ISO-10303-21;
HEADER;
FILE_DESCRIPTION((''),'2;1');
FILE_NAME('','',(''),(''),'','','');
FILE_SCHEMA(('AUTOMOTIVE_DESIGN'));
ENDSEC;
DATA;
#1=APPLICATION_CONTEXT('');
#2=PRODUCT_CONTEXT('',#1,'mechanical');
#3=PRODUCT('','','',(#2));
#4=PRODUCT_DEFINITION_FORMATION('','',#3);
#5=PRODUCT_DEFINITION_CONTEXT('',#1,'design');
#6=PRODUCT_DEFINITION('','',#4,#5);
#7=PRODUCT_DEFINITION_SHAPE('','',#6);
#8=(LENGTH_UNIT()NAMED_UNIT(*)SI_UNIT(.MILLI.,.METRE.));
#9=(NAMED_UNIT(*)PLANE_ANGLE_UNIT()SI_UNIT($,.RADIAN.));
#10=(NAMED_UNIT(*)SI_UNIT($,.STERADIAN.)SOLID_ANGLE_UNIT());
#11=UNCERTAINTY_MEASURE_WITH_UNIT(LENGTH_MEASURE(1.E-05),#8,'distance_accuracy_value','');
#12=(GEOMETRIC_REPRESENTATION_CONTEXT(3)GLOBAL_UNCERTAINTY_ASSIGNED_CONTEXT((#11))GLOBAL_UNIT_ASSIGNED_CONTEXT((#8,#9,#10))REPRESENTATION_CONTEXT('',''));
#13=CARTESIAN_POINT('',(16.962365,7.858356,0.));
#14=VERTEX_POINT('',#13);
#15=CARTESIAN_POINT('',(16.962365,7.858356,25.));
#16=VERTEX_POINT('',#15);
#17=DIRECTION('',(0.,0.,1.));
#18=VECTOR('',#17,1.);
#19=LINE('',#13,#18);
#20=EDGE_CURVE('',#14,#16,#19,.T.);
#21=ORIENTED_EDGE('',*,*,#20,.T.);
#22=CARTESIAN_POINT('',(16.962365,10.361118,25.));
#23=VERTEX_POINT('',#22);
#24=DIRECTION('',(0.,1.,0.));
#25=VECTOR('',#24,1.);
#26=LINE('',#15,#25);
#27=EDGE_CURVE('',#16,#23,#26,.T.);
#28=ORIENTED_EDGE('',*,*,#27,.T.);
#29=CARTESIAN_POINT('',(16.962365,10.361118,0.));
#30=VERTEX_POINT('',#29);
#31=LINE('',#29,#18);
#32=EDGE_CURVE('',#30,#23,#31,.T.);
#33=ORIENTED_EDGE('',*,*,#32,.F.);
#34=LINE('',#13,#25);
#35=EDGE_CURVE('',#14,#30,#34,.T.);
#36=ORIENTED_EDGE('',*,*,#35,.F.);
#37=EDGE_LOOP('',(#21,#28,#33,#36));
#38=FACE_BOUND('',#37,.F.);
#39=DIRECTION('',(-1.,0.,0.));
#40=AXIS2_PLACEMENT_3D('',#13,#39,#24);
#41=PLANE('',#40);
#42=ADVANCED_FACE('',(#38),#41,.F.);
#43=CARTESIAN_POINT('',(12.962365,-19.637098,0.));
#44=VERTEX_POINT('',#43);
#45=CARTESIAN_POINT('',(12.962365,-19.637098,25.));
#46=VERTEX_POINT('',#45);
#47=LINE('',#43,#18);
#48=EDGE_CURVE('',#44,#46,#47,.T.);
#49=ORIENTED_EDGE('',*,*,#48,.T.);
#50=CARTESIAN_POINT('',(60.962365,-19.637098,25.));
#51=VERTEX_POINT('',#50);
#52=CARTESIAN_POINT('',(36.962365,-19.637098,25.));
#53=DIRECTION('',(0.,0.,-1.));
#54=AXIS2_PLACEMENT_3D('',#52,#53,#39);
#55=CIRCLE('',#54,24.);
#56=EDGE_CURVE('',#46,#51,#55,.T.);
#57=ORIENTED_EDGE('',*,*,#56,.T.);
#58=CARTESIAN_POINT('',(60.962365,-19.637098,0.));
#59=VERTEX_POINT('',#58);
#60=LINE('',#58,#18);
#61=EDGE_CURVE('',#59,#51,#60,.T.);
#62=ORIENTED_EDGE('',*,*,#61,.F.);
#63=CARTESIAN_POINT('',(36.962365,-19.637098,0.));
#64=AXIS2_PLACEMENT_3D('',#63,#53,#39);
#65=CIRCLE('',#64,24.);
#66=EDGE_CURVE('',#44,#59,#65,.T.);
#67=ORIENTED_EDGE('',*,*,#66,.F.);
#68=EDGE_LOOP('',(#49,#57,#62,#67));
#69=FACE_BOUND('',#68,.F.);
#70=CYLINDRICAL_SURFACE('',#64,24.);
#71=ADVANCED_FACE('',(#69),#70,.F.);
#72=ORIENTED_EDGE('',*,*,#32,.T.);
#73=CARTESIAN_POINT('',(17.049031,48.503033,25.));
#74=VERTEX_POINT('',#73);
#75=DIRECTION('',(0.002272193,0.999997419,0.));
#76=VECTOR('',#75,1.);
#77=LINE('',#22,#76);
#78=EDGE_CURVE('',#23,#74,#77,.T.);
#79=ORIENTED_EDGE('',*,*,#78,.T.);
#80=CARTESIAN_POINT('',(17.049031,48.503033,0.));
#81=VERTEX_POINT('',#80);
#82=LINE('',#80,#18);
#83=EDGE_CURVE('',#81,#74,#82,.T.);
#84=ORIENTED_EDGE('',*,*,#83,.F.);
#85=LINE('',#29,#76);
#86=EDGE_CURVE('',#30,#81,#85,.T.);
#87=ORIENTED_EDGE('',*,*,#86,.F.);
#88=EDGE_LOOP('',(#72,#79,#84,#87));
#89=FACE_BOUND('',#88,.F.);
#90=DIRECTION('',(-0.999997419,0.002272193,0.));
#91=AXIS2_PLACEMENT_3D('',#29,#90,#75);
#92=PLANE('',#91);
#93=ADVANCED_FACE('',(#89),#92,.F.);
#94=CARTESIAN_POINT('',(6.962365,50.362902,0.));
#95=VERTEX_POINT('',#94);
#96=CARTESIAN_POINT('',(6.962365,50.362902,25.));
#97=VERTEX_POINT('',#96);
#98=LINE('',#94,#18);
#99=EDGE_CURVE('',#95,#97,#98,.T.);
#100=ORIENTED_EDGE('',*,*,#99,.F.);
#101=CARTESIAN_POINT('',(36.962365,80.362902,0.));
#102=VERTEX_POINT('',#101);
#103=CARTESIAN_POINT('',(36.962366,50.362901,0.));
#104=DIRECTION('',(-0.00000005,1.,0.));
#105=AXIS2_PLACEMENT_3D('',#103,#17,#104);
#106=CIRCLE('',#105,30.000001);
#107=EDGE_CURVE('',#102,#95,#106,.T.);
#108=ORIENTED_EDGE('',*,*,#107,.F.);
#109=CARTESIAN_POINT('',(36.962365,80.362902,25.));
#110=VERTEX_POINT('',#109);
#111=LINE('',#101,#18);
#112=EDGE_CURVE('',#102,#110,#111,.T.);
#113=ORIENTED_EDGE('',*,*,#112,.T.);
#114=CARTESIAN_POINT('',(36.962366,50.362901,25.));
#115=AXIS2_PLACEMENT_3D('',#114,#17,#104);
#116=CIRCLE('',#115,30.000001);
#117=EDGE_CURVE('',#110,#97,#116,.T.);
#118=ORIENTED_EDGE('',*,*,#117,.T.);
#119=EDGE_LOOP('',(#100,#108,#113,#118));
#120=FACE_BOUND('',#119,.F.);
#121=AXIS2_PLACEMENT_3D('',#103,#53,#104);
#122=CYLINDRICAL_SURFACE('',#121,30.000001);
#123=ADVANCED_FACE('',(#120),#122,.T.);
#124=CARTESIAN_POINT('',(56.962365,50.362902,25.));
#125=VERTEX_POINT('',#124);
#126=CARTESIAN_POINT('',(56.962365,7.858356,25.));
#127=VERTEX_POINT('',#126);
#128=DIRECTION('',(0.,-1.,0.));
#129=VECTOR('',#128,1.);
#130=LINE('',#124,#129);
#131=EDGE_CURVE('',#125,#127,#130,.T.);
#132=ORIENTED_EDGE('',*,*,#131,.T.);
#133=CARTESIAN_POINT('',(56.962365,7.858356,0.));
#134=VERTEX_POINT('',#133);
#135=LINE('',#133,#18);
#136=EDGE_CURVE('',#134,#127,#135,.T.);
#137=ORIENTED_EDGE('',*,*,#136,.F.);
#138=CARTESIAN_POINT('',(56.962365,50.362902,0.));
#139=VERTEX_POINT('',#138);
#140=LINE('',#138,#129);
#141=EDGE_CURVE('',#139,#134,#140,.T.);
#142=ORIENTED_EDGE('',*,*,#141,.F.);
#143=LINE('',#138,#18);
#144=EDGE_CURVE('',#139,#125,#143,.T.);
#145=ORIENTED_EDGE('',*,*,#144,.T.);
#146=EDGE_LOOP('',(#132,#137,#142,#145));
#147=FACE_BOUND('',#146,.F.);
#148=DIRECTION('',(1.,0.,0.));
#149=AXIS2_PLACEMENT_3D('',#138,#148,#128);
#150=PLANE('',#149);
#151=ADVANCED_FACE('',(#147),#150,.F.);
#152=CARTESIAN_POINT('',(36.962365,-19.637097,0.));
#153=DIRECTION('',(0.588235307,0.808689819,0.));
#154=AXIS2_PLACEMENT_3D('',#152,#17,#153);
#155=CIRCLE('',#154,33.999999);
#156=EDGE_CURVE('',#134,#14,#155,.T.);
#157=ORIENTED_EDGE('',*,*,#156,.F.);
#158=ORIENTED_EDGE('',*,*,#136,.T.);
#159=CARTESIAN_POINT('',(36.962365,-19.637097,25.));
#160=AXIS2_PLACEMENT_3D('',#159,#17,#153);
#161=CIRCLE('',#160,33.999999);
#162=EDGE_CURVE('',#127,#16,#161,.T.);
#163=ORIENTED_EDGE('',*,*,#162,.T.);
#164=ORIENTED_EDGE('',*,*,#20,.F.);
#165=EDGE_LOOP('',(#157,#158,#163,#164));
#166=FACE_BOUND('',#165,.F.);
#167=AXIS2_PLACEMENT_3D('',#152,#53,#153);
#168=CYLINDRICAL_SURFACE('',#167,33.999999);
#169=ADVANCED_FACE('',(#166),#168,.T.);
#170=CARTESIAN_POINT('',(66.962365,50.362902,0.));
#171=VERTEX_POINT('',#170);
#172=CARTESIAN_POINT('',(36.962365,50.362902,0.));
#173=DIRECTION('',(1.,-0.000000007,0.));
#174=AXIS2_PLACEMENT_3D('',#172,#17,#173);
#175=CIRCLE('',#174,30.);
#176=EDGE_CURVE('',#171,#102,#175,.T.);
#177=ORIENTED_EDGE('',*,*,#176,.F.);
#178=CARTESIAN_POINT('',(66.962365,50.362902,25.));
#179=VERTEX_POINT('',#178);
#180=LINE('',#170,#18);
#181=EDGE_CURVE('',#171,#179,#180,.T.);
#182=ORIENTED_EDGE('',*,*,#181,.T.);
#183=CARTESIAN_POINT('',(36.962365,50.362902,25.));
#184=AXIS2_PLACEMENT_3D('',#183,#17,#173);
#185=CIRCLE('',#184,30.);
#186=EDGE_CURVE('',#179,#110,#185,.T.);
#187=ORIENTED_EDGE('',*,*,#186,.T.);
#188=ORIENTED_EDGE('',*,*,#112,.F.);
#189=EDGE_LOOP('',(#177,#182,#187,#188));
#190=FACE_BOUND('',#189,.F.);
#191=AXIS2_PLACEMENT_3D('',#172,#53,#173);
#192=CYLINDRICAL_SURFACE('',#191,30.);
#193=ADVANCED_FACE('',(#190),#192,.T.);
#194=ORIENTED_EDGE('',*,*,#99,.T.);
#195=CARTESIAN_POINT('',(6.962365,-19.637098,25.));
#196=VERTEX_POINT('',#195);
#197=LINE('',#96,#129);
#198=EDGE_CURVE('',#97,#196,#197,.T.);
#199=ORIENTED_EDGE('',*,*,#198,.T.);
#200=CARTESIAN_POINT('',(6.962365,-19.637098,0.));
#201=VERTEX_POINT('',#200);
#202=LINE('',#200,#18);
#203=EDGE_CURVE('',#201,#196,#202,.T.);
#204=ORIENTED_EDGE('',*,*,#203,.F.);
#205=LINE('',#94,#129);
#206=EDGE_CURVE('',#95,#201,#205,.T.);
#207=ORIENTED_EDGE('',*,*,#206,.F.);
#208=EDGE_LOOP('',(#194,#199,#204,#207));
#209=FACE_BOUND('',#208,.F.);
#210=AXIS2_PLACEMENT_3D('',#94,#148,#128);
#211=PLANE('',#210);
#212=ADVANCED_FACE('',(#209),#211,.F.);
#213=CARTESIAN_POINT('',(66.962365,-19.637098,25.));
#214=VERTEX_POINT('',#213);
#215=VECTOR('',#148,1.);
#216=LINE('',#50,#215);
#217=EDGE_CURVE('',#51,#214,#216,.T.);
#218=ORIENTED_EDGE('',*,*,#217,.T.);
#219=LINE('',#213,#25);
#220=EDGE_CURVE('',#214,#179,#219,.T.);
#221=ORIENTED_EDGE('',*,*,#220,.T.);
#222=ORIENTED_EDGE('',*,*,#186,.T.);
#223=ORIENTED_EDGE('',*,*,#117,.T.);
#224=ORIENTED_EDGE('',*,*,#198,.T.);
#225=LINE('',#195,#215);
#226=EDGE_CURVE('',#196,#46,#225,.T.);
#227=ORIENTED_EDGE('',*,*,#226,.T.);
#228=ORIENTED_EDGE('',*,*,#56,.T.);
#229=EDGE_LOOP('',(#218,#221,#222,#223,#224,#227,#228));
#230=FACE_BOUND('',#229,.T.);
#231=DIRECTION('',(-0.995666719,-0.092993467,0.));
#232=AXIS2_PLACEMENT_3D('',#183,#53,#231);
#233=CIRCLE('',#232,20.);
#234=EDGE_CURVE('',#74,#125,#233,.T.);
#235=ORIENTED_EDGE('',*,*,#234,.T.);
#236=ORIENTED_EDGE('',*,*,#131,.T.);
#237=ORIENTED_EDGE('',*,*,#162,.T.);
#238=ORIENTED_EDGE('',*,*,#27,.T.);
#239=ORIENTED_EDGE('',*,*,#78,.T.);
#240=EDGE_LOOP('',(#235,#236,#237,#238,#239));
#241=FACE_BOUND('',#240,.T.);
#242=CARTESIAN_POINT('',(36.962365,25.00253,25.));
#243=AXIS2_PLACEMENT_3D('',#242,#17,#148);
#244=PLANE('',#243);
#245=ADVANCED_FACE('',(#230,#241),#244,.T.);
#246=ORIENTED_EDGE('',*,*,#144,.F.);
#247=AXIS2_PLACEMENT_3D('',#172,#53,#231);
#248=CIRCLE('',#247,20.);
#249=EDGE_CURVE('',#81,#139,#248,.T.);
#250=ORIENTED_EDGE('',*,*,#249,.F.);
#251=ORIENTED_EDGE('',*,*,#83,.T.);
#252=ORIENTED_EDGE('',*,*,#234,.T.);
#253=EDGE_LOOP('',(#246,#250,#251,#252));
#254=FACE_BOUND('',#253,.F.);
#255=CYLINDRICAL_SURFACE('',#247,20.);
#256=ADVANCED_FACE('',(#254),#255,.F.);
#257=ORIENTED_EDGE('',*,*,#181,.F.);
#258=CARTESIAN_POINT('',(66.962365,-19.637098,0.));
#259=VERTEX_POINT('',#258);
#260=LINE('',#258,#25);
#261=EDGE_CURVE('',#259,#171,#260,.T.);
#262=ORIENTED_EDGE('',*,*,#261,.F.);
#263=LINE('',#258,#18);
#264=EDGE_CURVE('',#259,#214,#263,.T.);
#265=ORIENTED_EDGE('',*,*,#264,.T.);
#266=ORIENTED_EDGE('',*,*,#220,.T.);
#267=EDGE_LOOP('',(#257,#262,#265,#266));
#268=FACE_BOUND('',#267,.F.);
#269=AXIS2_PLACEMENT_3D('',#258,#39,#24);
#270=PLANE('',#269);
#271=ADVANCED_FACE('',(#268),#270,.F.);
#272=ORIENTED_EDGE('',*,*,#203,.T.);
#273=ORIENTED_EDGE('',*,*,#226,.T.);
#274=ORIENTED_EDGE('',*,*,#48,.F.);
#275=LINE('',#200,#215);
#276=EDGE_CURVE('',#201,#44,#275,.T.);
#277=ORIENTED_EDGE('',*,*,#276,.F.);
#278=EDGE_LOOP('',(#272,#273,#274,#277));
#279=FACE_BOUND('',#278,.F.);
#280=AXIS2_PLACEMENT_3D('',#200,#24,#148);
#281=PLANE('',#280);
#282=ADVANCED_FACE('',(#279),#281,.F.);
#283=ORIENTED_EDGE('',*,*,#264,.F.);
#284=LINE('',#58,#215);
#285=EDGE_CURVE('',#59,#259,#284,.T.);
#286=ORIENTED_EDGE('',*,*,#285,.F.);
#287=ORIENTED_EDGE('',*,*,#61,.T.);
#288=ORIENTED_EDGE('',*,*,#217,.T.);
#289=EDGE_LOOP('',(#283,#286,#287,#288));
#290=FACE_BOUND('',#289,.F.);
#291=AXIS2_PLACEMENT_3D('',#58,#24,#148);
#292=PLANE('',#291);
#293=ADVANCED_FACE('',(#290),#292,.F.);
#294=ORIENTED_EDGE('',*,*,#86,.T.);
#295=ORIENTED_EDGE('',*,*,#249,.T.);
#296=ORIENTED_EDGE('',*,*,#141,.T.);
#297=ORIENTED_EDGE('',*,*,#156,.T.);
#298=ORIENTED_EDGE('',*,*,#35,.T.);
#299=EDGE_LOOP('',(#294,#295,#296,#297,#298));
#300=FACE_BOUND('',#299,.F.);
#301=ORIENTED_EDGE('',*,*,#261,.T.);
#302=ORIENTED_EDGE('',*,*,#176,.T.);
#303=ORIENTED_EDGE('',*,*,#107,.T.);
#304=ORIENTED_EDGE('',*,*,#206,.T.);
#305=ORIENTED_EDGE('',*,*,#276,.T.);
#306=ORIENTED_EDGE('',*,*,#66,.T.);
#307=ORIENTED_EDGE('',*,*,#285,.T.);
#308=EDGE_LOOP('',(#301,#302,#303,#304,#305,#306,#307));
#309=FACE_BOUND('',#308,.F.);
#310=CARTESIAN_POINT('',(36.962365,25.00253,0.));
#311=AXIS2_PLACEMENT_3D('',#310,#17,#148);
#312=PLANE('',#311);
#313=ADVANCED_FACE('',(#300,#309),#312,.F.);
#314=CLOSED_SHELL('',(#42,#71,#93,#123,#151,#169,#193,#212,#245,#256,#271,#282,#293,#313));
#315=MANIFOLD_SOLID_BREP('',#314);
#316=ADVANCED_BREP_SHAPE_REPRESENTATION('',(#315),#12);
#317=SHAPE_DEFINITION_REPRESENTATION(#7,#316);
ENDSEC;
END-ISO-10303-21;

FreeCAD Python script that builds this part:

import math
import FreeCAD as App
import Part
import Sketcher

V = App.Vector
Q = App.Units.Quantity

doc = App.newDocument("Part")
body = doc.addObject("PartDesign::Body", "Body")

# Sketch on XY plane
sketch1 = body.newObject("Sketcher::SketchObject", "Sketch")
sketch1.AttachmentSupport = (doc.getObject("XY_Plane"), [""])
sketch1.MapMode = "FlatFace"
sketch1.addGeometry([
    Part.LineSegment(V(60.962365, -19.637098, 0), V(66.962365, -19.637098, 0)),  # 0
    Part.LineSegment(V(66.962365, -19.637098, 0), V(66.962365, 50.362902, 0)),  # 1
    Part.ArcOfCircle(Part.Circle(V(36.962365, 50.362902, 0), V(0, 0, 1), 30), math.radians(0), math.radians(90)),  # 2
    Part.ArcOfCircle(Part.Circle(V(36.962366, 50.362901, 0), V(0, 0, 1), 30.000001), math.radians(90.000003), math.radians(179.999997)),  # 3
    Part.LineSegment(V(6.962365, 50.362902, 0), V(6.962365, -19.637098, 0)),  # 4
    Part.LineSegment(V(6.962365, -19.637098, 0), V(12.962365, -19.637098, 0)),  # 5
    Part.ArcOfCircle(Part.Circle(V(36.962365, -19.637098, 0), V(0, 0, 1), 24), math.radians(0), math.radians(180)),  # 6
    Part.LineSegment(V(56.962365, 50.362902, 0), V(56.962365, 7.858356, 0)),  # 7
    Part.ArcOfCircle(Part.Circle(V(36.962365, -19.637097, 0), V(0, 0, 1), 33.999999), math.radians(53.96812), math.radians(126.03188)),  # 8
    Part.LineSegment(V(16.962365, 7.858356, 0), V(16.962365, 10.361118, 0)),  # 9
    Part.LineSegment(V(16.962365, 10.361118, 0), V(17.049031, 48.503033, 0)),  # 10
    Part.ArcOfCircle(Part.Circle(V(36.962365, 50.362902, 0), V(0, 0, 1), 20), math.radians(-0.000001), math.radians(185.335843)),  # 11
], False)
sketch1.addConstraint([
    Sketcher.Constraint("Coincident", 0, 2, 1, 1),
    Sketcher.Constraint("Tangent", 1, 2, 2, 1),
    Sketcher.Constraint("Tangent", 2, 2, 3, 1),
    Sketcher.Constraint("Tangent", 3, 2, 4, 1),
    Sketcher.Constraint("Coincident", 4, 2, 5, 1),
    Sketcher.Constraint("Coincident", 5, 2, 6, 2),
    Sketcher.Constraint("Coincident", 6, 1, 0, 1),
    Sketcher.Constraint("Coincident", 7, 2, 8, 1),
    Sketcher.Constraint("Coincident", 8, 2, 9, 1),
    Sketcher.Constraint("Coincident", 9, 2, 10, 1),
    Sketcher.Constraint("Coincident", 10, 2, 11, 2),
    Sketcher.Constraint("Tangent", 11, 1, 7, 1),
    Sketcher.Constraint("Horizontal", 0),
    Sketcher.Constraint("Vertical", 1),
    Sketcher.Constraint("Vertical", 4),
    Sketcher.Constraint("Horizontal", 5),
    Sketcher.Constraint("Vertical", 7),
    Sketcher.Constraint("Vertical", 9),
    Sketcher.Constraint("Coincident", 8, 3, 6, 3),
    Sketcher.Constraint("Coincident", 11, 3, 2, 3),
    Sketcher.Constraint("Equal", 2, 3),
    Sketcher.Constraint("Horizontal", 8, 3, 0, 2),
    Sketcher.Constraint("Horizontal", 0, 2, 4, 2),
    Sketcher.Constraint("Horizontal", 7, 2, 8, 2),
    Sketcher.Constraint("Vertical", 3, 3, 6, 3),
    Sketcher.Constraint("Vertical", 11, 3, 2, 2),
    Sketcher.Constraint("Radius", 2, Q("30 mm")),
    Sketcher.Constraint("Radius", 6, Q("24 mm")),
    Sketcher.Constraint("Radius", 8, Q("33.999999 mm")),
    Sketcher.Constraint("Radius", 11, Q("20 mm")),
    Sketcher.Constraint("DistanceY", 1, 1, 1, 2, Q("70 mm")),
    Sketcher.Constraint("DistanceY", 9, 1, 9, 2, Q("2.502762 mm")),
    Sketcher.Constraint("DistanceY", -1, 1, 3, 3, Q("50.362901 mm")),
    Sketcher.Constraint("DistanceX", -1, 1, 10, 2, Q("17.049031 mm")),
    Sketcher.Constraint("DistanceY", 10, 2, 3, 2, Q("1.859869 mm")),
])
pad1 = body.newObject("PartDesign::Pad", "Pad")
pad1.Profile = sketch1
pad1.Length = 25

doc.recompute()
